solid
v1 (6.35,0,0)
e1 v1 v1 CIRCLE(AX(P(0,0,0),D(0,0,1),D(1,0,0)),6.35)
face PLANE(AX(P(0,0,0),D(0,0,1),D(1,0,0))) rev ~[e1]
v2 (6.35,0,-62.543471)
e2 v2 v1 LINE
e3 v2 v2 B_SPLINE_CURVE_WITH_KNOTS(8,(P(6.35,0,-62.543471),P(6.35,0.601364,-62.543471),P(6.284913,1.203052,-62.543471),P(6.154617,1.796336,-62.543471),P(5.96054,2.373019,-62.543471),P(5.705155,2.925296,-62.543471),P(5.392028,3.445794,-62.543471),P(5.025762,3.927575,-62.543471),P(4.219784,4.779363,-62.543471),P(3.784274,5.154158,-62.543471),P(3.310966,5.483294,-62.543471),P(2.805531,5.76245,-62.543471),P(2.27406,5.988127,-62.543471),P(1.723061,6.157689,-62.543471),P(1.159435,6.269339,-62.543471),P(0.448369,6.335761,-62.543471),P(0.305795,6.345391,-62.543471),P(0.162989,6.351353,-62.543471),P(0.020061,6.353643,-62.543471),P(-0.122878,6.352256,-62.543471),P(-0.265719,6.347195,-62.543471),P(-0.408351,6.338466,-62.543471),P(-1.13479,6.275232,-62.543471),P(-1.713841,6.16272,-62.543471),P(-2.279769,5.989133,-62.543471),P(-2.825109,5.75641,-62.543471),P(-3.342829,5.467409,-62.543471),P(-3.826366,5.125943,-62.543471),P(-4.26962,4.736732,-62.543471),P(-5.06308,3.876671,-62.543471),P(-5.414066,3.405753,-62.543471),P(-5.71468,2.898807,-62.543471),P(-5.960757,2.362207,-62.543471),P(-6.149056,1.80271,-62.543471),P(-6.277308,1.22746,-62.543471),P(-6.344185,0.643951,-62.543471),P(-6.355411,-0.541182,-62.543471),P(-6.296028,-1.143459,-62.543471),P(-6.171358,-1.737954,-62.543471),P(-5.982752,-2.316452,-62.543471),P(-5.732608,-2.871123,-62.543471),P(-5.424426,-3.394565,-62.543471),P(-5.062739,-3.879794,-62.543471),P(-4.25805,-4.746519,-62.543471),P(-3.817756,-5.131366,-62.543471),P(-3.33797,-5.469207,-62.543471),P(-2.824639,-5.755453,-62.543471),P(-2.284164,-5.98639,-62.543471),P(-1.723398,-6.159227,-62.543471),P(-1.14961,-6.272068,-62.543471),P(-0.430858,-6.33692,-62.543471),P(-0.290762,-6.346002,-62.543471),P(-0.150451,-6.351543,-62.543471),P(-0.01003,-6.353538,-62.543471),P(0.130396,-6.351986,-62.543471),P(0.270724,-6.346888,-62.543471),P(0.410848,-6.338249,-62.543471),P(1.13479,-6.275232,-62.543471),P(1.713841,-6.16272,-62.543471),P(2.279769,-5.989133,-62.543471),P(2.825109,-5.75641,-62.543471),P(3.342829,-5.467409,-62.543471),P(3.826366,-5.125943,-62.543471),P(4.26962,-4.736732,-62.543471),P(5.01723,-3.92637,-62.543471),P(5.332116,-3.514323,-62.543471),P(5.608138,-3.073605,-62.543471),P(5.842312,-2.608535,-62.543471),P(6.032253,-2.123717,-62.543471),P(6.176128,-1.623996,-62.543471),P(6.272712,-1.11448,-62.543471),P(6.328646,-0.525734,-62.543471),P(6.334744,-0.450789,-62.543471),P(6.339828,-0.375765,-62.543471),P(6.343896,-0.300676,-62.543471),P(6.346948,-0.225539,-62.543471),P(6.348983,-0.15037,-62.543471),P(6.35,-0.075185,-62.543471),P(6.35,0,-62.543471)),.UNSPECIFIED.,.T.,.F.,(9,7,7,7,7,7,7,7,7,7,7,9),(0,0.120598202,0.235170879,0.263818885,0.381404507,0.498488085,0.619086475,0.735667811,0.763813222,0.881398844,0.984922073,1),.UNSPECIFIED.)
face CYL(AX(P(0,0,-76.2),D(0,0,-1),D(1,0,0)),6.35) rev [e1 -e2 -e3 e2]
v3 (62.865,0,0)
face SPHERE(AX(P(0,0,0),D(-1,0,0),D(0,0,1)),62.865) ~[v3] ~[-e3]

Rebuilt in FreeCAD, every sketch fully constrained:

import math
import FreeCAD as App
import Part
import Sketcher
Q = App.Units.Quantity

doc = App.newDocument("Part")
body = doc.addObject("PartDesign::Body", "Body")

# Sketch on XZ plane
sketch1 = body.newObject("Sketcher::SketchObject", "Sketch")
sketch1.AttachmentSupport = (doc.getObject("XZ_Plane"), [""])
sketch1.MapMode = "FlatFace"
sketch1.addGeometry([
    Part.LineSegment(App.Vector(-63, 0, 0), App.Vector(63, 0, 0)),
    Part.ArcOfCircle(Part.Circle(App.Vector(0, 0, 0), App.Vector(0, 0, 1), 63), math.radians(0), math.radians(180)),
], False)
sketch1.addConstraint([
    Sketcher.Constraint("Coincident", 0, 1, 1, 2),
    Sketcher.Constraint("Coincident", 1, 1, 0, 2),
    Sketcher.Constraint("Horizontal", 0),
    Sketcher.Constraint("Coincident", 1, 3, -1, 1),
    Sketcher.Constraint("PointOnObject", 0, 1, -1),
    Sketcher.Constraint("Radius", 1, Q("2.475 in")),
])
revolution = body.newObject("PartDesign::Revolution", "Revolution")
revolution.Profile = sketch1
revolution.ReferenceAxis = (sketch1, ["H_Axis"])
revolution.Angle = 360

# Sketch on XY plane
sketch2 = body.newObject("Sketcher::SketchObject", "Sketch001")
sketch2.AttachmentSupport = (doc.getObject("XY_Plane"), [""])
sketch2.MapMode = "FlatFace"
sketch2.AttachmentOffset = App.Placement(App.Vector(0, 0, -3 * 25.4), App.Rotation())
sketch2.addGeometry(Part.Circle(App.Vector(0, 0, 0), App.Vector(0, 0, 1), 6), False)
sketch2.addConstraint([
    Sketcher.Constraint("Coincident", 0, 3, -1, 1),
    Sketcher.Constraint("Diameter", 0, Q("0.5 in")),
])
pocket1 = body.newObject("PartDesign::Pocket", "Pocket")
pocket1.Profile = sketch2
pocket1.Length = Q("3 in")
pocket1.Reversed = True

doc.recompute()
